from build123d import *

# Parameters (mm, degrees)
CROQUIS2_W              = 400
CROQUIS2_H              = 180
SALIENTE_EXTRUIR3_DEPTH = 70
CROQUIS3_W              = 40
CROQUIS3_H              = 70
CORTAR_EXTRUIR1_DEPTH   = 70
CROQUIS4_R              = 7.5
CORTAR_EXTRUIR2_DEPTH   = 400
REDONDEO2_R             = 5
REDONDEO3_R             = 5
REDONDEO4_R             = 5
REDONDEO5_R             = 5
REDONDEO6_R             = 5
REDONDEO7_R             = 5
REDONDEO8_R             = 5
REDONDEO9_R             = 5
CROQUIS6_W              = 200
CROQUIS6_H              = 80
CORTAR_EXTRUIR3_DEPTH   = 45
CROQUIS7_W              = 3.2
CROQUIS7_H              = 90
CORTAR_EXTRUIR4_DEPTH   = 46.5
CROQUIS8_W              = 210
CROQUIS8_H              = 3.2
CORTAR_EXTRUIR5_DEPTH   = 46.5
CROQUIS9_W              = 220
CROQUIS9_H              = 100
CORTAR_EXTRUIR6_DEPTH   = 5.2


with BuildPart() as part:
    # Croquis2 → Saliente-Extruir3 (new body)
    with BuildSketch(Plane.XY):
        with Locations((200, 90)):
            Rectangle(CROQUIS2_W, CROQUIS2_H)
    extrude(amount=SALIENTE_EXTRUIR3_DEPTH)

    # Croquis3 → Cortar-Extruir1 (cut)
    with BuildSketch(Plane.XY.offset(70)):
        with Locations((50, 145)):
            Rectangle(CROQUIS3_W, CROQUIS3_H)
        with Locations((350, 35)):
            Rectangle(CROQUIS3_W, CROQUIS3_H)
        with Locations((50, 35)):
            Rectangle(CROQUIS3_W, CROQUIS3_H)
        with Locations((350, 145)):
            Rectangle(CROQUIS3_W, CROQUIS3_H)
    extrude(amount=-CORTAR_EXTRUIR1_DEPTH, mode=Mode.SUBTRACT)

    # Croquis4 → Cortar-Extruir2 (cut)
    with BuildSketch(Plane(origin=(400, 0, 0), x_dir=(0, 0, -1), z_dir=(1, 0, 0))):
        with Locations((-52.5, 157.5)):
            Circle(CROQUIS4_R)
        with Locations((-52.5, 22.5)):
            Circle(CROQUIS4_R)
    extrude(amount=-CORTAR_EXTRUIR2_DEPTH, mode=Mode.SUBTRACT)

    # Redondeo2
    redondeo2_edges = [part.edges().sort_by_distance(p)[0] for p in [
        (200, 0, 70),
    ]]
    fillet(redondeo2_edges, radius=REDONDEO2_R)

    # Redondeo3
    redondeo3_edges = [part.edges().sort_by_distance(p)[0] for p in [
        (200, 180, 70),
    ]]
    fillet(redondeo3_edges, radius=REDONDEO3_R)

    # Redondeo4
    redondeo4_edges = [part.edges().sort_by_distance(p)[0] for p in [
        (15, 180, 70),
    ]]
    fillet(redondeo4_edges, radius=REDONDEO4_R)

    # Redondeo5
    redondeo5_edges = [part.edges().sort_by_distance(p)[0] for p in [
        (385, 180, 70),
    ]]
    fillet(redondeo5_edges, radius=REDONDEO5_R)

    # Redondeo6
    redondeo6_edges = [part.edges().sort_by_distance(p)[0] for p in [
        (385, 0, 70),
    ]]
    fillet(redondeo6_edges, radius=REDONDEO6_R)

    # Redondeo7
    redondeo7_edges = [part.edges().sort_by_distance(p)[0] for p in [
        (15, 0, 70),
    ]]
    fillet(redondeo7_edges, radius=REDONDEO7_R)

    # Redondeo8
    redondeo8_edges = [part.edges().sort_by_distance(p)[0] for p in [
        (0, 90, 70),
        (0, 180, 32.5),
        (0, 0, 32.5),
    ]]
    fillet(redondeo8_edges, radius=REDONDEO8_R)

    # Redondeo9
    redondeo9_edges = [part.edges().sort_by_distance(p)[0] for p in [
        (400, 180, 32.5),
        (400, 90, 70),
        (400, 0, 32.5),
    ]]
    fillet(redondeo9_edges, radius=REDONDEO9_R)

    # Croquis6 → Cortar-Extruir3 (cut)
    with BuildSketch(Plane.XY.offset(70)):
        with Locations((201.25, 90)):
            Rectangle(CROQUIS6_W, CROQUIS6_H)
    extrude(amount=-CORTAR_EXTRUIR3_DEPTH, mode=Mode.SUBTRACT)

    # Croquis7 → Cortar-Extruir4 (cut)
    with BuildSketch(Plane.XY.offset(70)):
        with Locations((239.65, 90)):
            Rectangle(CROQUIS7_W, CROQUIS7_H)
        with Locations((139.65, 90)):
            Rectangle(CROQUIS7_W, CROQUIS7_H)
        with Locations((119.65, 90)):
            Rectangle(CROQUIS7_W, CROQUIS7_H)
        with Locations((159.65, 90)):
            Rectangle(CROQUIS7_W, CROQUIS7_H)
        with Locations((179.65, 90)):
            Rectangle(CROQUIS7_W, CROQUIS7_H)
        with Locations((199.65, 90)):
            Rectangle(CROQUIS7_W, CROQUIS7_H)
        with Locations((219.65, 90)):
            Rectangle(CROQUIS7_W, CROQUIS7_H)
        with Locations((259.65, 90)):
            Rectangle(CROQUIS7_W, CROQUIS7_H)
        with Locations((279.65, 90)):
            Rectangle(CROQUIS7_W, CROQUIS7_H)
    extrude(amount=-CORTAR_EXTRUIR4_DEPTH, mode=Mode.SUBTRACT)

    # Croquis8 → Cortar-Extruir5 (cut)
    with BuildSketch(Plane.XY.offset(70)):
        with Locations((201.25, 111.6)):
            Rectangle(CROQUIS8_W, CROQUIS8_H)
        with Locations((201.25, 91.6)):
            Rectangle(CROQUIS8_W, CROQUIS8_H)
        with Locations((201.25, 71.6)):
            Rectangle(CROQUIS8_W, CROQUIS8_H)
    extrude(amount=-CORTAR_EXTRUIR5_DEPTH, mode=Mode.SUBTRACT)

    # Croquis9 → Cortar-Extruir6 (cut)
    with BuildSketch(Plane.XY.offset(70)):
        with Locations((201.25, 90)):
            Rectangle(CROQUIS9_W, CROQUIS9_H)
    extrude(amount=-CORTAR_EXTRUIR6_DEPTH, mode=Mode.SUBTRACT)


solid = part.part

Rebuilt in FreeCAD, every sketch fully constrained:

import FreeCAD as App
import Part
import Sketcher
Q = App.Units.Quantity


def edges_at(feature, points):
    """Names of the edges that pass closest to the given points."""
    edges = feature.Shape.Edges
    near = lambda p: min(range(len(edges)), key=lambda i: edges[i].distToShape(Part.Vertex(*p))[0])
    return sorted({f"Edge{near(p) + 1}" for p in points})

doc = App.newDocument("Part")
body = doc.addObject("PartDesign::Body", "Body")

# Sketch on XY plane
sketch1 = body.newObject("Sketcher::SketchObject", "Sketch")
sketch1.AttachmentSupport = (doc.getObject("XY_Plane"), [""])
sketch1.MapMode = "FlatFace"
sketch1.addGeometry(Part.LineSegment(App.Vector(0, 180, 0), App.Vector(0, 0, 0)), False)
sketch1.addGeometry(Part.LineSegment(App.Vector(0, 0, 0), App.Vector(400, 0, 0)), False)
sketch1.addGeometry(Part.LineSegment(App.Vector(400, 0, 0), App.Vector(400, 180, 0)), False)
sketch1.addGeometry(Part.LineSegment(App.Vector(400, 180, 0), App.Vector(0, 180, 0)), False)
sketch1.addConstraint(Sketcher.Constraint("Coincident", 0, 2, 1, 1))
sketch1.addConstraint(Sketcher.Constraint("Coincident", 1, 2, 2, 1))
sketch1.addConstraint(Sketcher.Constraint("Coincident", 2, 2, 3, 1))
sketch1.addConstraint(Sketcher.Constraint("Coincident", 3, 2, 0, 1))
sketch1.addConstraint(Sketcher.Constraint("Vertical", 0))
sketch1.addConstraint(Sketcher.Constraint("Horizontal", 1))
sketch1.addConstraint(Sketcher.Constraint("Vertical", 2))
sketch1.addConstraint(Sketcher.Constraint("Horizontal", 3))
sketch1.addConstraint(Sketcher.Constraint("Coincident", 0, 2, -1, 1))
sketch1.addConstraint(Sketcher.Constraint("DistanceX", 1, 1, 1, 2, Q("400 mm")))
sketch1.addConstraint(Sketcher.Constraint("DistanceY", 0, 2, 0, 1, Q("180 mm")))
pad1 = body.newObject("PartDesign::Pad", "Pad")
pad1.Profile = sketch1
pad1.Length = 70

# Sketch on XY plane
sketch2 = body.newObject("Sketcher::SketchObject", "Sketch001")
sketch2.AttachmentSupport = (doc.getObject("XY_Plane"), [""])
sketch2.MapMode = "FlatFace"
sketch2.AttachmentOffset = App.Placement(App.Vector(0, 0, 70), App.Rotation())
sketch2.addGeometry(Part.LineSegment(App.Vector(30, 180, 0), App.Vector(30, 110, 0)), False)
sketch2.addGeometry(Part.LineSegment(App.Vector(30, 110, 0), App.Vector(70, 110, 0)), False)
sketch2.addGeometry(Part.LineSegment(App.Vector(70, 110, 0), App.Vector(70, 180, 0)), False)
sketch2.addGeometry(Part.LineSegment(App.Vector(70, 180, 0), App.Vector(30, 180, 0)), False)
sketch2.addGeometry(Part.LineSegment(App.Vector(330, 70, 0), App.Vector(330, 0, 0)), False)
sketch2.addGeometry(Part.LineSegment(App.Vector(330, 0, 0), App.Vector(370, 0, 0)), False)
sketch2.addGeometry(Part.LineSegment(App.Vector(370, 0, 0), App.Vector(370, 70, 0)), False)
sketch2.addGeometry(Part.LineSegment(App.Vector(370, 70, 0), App.Vector(330, 70, 0)), False)
sketch2.addGeometry(Part.LineSegment(App.Vector(30, 70, 0), App.Vector(30, 0, 0)), False)
sketch2.addGeometry(Part.LineSegment(App.Vector(30, 0, 0), App.Vector(70, 0, 0)), False)
sketch2.addGeometry(Part.LineSegment(App.Vector(70, 0, 0), App.Vector(70, 70, 0)), False)
sketch2.addGeometry(Part.LineSegment(App.Vector(70, 70, 0), App.Vector(30, 70, 0)), False)
sketch2.addGeometry(Part.LineSegment(App.Vector(330, 180, 0), App.Vector(330, 110, 0)), False)
sketch2.addGeometry(Part.LineSegment(App.Vector(330, 110, 0), App.Vector(370, 110, 0)), False)
sketch2.addGeometry(Part.LineSegment(App.Vector(370, 110, 0), App.Vector(370, 180, 0)), False)
sketch2.addGeometry(Part.LineSegment(App.Vector(370, 180, 0), App.Vector(330, 180, 0)), False)
sketch2.addConstraint(Sketcher.Constraint("Coincident", 0, 2, 1, 1))
sketch2.addConstraint(Sketcher.Constraint("Coincident", 1, 2, 2, 1))
sketch2.addConstraint(Sketcher.Constraint("Coincident", 2, 2, 3, 1))
sketch2.addConstraint(Sketcher.Constraint("Coincident", 3, 2, 0, 1))
sketch2.addConstraint(Sketcher.Constraint("Coincident", 4, 2, 5, 1))
sketch2.addConstraint(Sketcher.Constraint("Coincident", 5, 2, 6, 1))
sketch2.addConstraint(Sketcher.Constraint("Coincident", 6, 2, 7, 1))
sketch2.addConstraint(Sketcher.Constraint("Coincident", 7, 2, 4, 1))
sketch2.addConstraint(Sketcher.Constraint("Coincident", 8, 2, 9, 1))
sketch2.addConstraint(Sketcher.Constraint("Coincident", 9, 2, 10, 1))
sketch2.addConstraint(Sketcher.Constraint("Coincident", 10, 2, 11, 1))
sketch2.addConstraint(Sketcher.Constraint("Coincident", 11, 2, 8, 1))
sketch2.addConstraint(Sketcher.Constraint("Coincident", 12, 2, 13, 1))
sketch2.addConstraint(Sketcher.Constraint("Coincident", 13, 2, 14, 1))
sketch2.addConstraint(Sketcher.Constraint("Coincident", 14, 2, 15, 1))
sketch2.addConstraint(Sketcher.Constraint("Coincident", 15, 2, 12, 1))
sketch2.addConstraint(Sketcher.Constraint("Vertical", 0))
sketch2.addConstraint(Sketcher.Constraint("Horizontal", 1))
sketch2.addConstraint(Sketcher.Constraint("Vertical", 2))
sketch2.addConstraint(Sketcher.Constraint("Horizontal", 3))
sketch2.addConstraint(Sketcher.Constraint("Vertical", 4))
sketch2.addConstraint(Sketcher.Constraint("Horizontal", 5))
sketch2.addConstraint(Sketcher.Constraint("Vertical", 6))
sketch2.addConstraint(Sketcher.Constraint("Horizontal", 7))
sketch2.addConstraint(Sketcher.Constraint("Vertical", 8))
sketch2.addConstraint(Sketcher.Constraint("Horizontal", 9))
sketch2.addConstraint(Sketcher.Constraint("Vertical", 10))
sketch2.addConstraint(Sketcher.Constraint("Horizontal", 11))
sketch2.addConstraint(Sketcher.Constraint("Vertical", 12))
sketch2.addConstraint(Sketcher.Constraint("Horizontal", 13))
sketch2.addConstraint(Sketcher.Constraint("Vertical", 14))
sketch2.addConstraint(Sketcher.Constraint("Horizontal", 15))
sketch2.addConstraint(Sketcher.Constraint("PointOnObject", 4, 2, -1))
sketch2.addConstraint(Sketcher.Constraint("PointOnObject", 8, 2, -1))
sketch2.addConstraint(Sketcher.Constraint("Horizontal", 7, 2, 10, 2))
sketch2.addConstraint(Sketcher.Constraint("Horizontal", 1, 2, 12, 2))
sketch2.addConstraint(Sketcher.Constraint("Horizontal", 3, 2, 14, 2))
sketch2.addConstraint(Sketcher.Constraint("Vertical", 3, 2, 8, 2))
sketch2.addConstraint(Sketcher.Constraint("Vertical", 2, 2, 9, 2))
sketch2.addConstraint(Sketcher.Constraint("Vertical", 7, 2, 12, 2))
sketch2.addConstraint(Sketcher.Constraint("Vertical", 6, 2, 13, 2))
sketch2.addConstraint(Sketcher.Constraint("Equal", 3, 5))
sketch2.addConstraint(Sketcher.Constraint("Equal", 2, 4))
sketch2.addConstraint(Sketcher.Constraint("DistanceX", 1, 1, 1, 2, Q("40 mm")))
sketch2.addConstraint(Sketcher.Constraint("DistanceY", 0, 2, 0, 1, Q("70 mm")))
sketch2.addConstraint(Sketcher.Constraint("DistanceX", -1, 1, 0, 2, Q("30 mm")))
sketch2.addConstraint(Sketcher.Constraint("DistanceY", -1, 1, 0, 2, Q("110 mm")))
sketch2.addConstraint(Sketcher.Constraint("DistanceX", -1, 1, 4, 2, Q("330 mm")))
pocket1 = body.newObject("PartDesign::Pocket", "Pocket")
pocket1.Profile = sketch2
pocket1.Length = 70

# Sketch on YZ plane
sketch3 = body.newObject("Sketcher::SketchObject", "Sketch002")
sketch3.AttachmentSupport = (doc.getObject("YZ_Plane"), [""])
sketch3.MapMode = "FlatFace"
sketch3.AttachmentOffset = App.Placement(App.Vector(0, 0, 400), App.Rotation())
sketch3.addGeometry(Part.Circle(App.Vector(158, 52, 0), App.Vector(0, 0, 1), 8), False)
sketch3.addGeometry(Part.Circle(App.Vector(22, 52, 0), App.Vector(0, 0, 1), 8), False)
sketch3.addConstraint(Sketcher.Constraint("Equal", 0, 1))
sketch3.addConstraint(Sketcher.Constraint("Horizontal", 0, 3, 1, 3))
sketch3.addConstraint(Sketcher.Constraint("Diameter", 0, Q("15 mm")))
sketch3.addConstraint(Sketcher.Constraint("DistanceX", 1, 3, 0, 3, Q("135 mm")))
sketch3.addConstraint(Sketcher.Constraint("DistanceX", -1, 1, 0, 3, Q("157.5 mm")))
sketch3.addConstraint(Sketcher.Constraint("DistanceY", -1, 1, 0, 3, Q("52.5 mm")))
pocket2 = body.newObject("PartDesign::Pocket", "Pocket001")
pocket2.Profile = sketch3
pocket2.Length = 400
doc.recompute()

fillet = body.newObject("PartDesign::Fillet", "Fillet")
fillet.Base = (pocket2, edges_at(pocket2, [(200, 0, 70)]))
fillet.Radius = 5
doc.recompute()

fillet2 = body.newObject("PartDesign::Fillet", "Fillet001")
fillet2.Base = (fillet, edges_at(fillet, [(200, 180, 70)]))
fillet2.Radius = 5
doc.recompute()

fillet3 = body.newObject("PartDesign::Fillet", "Fillet002")
fillet3.Base = (fillet2, edges_at(fillet2, [(15, 180, 70)]))
fillet3.Radius = 5
doc.recompute()

fillet4 = body.newObject("PartDesign::Fillet", "Fillet003")
fillet4.Base = (fillet3, edges_at(fillet3, [(385, 180, 70)]))
fillet4.Radius = 5
doc.recompute()

fillet5 = body.newObject("PartDesign::Fillet", "Fillet004")
fillet5.Base = (fillet4, edges_at(fillet4, [(385, 0, 70)]))
fillet5.Radius = 5
doc.recompute()

fillet6 = body.newObject("PartDesign::Fillet", "Fillet005")
fillet6.Base = (fillet5, edges_at(fillet5, [(15, 0, 70)]))
fillet6.Radius = 5
doc.recompute()

fillet7 = body.newObject("PartDesign::Fillet", "Fillet006")
fillet7.Base = (fillet6, edges_at(fillet6, [(0, 90, 70), (0, 180, 32.5), (0, 0, 32.5)]))
fillet7.Radius = 5
doc.recompute()

fillet8 = body.newObject("PartDesign::Fillet", "Fillet007")
fillet8.Base = (fillet7, edges_at(fillet7, [(400, 180, 32.5), (400, 90, 70), (400, 0, 32.5)]))
fillet8.Radius = 5

# Sketch on XY plane
sketch4 = body.newObject("Sketcher::SketchObject", "Sketch003")
sketch4.AttachmentSupport = (doc.getObject("XY_Plane"), [""])
sketch4.MapMode = "FlatFace"
sketch4.AttachmentOffset = App.Placement(App.Vector(0, 0, 70), App.Rotation())
sketch4.addGeometry(Part.LineSegment(App.Vector(101, 130, 0), App.Vector(101, 50, 0)), False)
sketch4.addGeometry(Part.LineSegment(App.Vector(101, 50, 0), App.Vector(301, 50, 0)), False)
sketch4.addGeometry(Part.LineSegment(App.Vector(301, 50, 0), App.Vector(301, 130, 0)), False)
sketch4.addGeometry(Part.LineSegment(App.Vector(301, 130, 0), App.Vector(101, 130, 0)), False)
sketch4.addConstraint(Sketcher.Constraint("Coincident", 0, 2, 1, 1))
sketch4.addConstraint(Sketcher.Constraint("Coincident", 1, 2, 2, 1))
sketch4.addConstraint(Sketcher.Constraint("Coincident", 2, 2, 3, 1))
sketch4.addConstraint(Sketcher.Constraint("Coincident", 3, 2, 0, 1))
sketch4.addConstraint(Sketcher.Constraint("Vertical", 0))
sketch4.addConstraint(Sketcher.Constraint("Horizontal", 1))
sketch4.addConstraint(Sketcher.Constraint("Vertical", 2))
sketch4.addConstraint(Sketcher.Constraint("Horizontal", 3))
sketch4.addConstraint(Sketcher.Constraint("DistanceX", 1, 1, 1, 2, Q("200 mm")))
sketch4.addConstraint(Sketcher.Constraint("DistanceY", 0, 2, 0, 1, Q("80 mm")))
sketch4.addConstraint(Sketcher.Constraint("DistanceY", -1, 1, 0, 2, Q("50 mm")))
sketch4.addConstraint(Sketcher.Constraint("DistanceX", -1, 1, 0, 2, Q("101.25 mm")))
pocket3 = body.newObject("PartDesign::Pocket", "Pocket002")
pocket3.Profile = sketch4
pocket3.Length = 45

# Sketch on XY plane
sketch5 = body.newObject("Sketcher::SketchObject", "Sketch004")
sketch5.AttachmentSupport = (doc.getObject("XY_Plane"), [""])
sketch5.MapMode = "FlatFace"
sketch5.AttachmentOffset = App.Placement(App.Vector(0, 0, 70), App.Rotation())
sketch5.addGeometry(Part.LineSegment(App.Vector(238.1, 135, 0), App.Vector(238.1, 45, 0)), False)
sketch5.addGeometry(Part.LineSegment(App.Vector(238.1, 45, 0), App.Vector(241.2, 45, 0)), False)
sketch5.addGeometry(Part.LineSegment(App.Vector(241.2, 45, 0), App.Vector(241.2, 135, 0)), False)
sketch5.addGeometry(Part.LineSegment(App.Vector(241.2, 135, 0), App.Vector(238.1, 135, 0)), False)
sketch5.addGeometry(Part.LineSegment(App.Vector(138.1, 135, 0), App.Vector(138.1, 45, 0)), False)
sketch5.addGeometry(Part.LineSegment(App.Vector(138.1, 45, 0), App.Vector(141.2, 45, 0)), False)
sketch5.addGeometry(Part.LineSegment(App.Vector(141.2, 45, 0), App.Vector(141.2, 135, 0)), False)
sketch5.addGeometry(Part.LineSegment(App.Vector(141.2, 135, 0), App.Vector(138.1, 135, 0)), False)
sketch5.addGeometry(Part.LineSegment(App.Vector(118, 135, 0), App.Vector(118, 45, 0)), False)
sketch5.addGeometry(Part.LineSegment(App.Vector(118, 45, 0), App.Vector(121.2, 45, 0)), False)
sketch5.addGeometry(Part.LineSegment(App.Vector(121.2, 45, 0), App.Vector(121.2, 135, 0)), False)
sketch5.addGeometry(Part.LineSegment(App.Vector(121.2, 135, 0), App.Vector(118, 135, 0)), False)
sketch5.addGeometry(Part.LineSegment(App.Vector(158.1, 135, 0), App.Vector(158.1, 45, 0)), False)
sketch5.addGeometry(Part.LineSegment(App.Vector(158.1, 45, 0), App.Vector(161.2, 45, 0)), False)
sketch5.addGeometry(Part.LineSegment(App.Vector(161.2, 45, 0), App.Vector(161.2, 135, 0)), False)
sketch5.addGeometry(Part.LineSegment(App.Vector(161.2, 135, 0), App.Vector(158.1, 135, 0)), False)
sketch5.addGeometry(Part.LineSegment(App.Vector(178.1, 135, 0), App.Vector(178.1, 45, 0)), False)
sketch5.addGeometry(Part.LineSegment(App.Vector(178.1, 45, 0), App.Vector(181.2, 45, 0)), False)
sketch5.addGeometry(Part.LineSegment(App.Vector(181.2, 45, 0), App.Vector(181.2, 135, 0)), False)
sketch5.addGeometry(Part.LineSegment(App.Vector(181.2, 135, 0), App.Vector(178.1, 135, 0)), False)
sketch5.addGeometry(Part.LineSegment(App.Vector(198.1, 135, 0), App.Vector(198.1, 45, 0)), False)
sketch5.addGeometry(Part.LineSegment(App.Vector(198.1, 45, 0), App.Vector(201.2, 45, 0)), False)
sketch5.addGeometry(Part.LineSegment(App.Vector(201.2, 45, 0), App.Vector(201.2, 135, 0)), False)
sketch5.addGeometry(Part.LineSegment(App.Vector(201.2, 135, 0), App.Vector(198.1, 135, 0)), False)
sketch5.addGeometry(Part.LineSegment(App.Vector(218.1, 135, 0), App.Vector(218.1, 45, 0)), False)
sketch5.addGeometry(Part.LineSegment(App.Vector(218.1, 45, 0), App.Vector(221.2, 45, 0)), False)
sketch5.addGeometry(Part.LineSegment(App.Vector(221.2, 45, 0), App.Vector(221.2, 135, 0)), False)
sketch5.addGeometry(Part.LineSegment(App.Vector(221.2, 135, 0), App.Vector(218.1, 135, 0)), False)
sketch5.addGeometry(Part.LineSegment(App.Vector(258.1, 135, 0), App.Vector(258.1, 45, 0)), False)
sketch5.addGeometry(Part.LineSegment(App.Vector(258.1, 45, 0), App.Vector(261.2, 45, 0)), False)
sketch5.addGeometry(Part.LineSegment(App.Vector(261.2, 45, 0), App.Vector(261.2, 135, 0)), False)
sketch5.addGeometry(Part.LineSegment(App.Vector(261.2, 135, 0), App.Vector(258.1, 135, 0)), False)
sketch5.addGeometry(Part.LineSegment(App.Vector(278.1, 135, 0), App.Vector(278.1, 45, 0)), False)
sketch5.addGeometry(Part.LineSegment(App.Vector(278.1, 45, 0), App.Vector(281.2, 45, 0)), False)
sketch5.addGeometry(Part.LineSegment(App.Vector(281.2, 45, 0), App.Vector(281.2, 135, 0)), False)
sketch5.addGeometry(Part.LineSegment(App.Vector(281.2, 135, 0), App.Vector(278.1, 135, 0)), False)
sketch5.addConstraint(Sketcher.Constraint("Coincident", 0, 2, 1, 1))
sketch5.addConstraint(Sketcher.Constraint("Coincident", 1, 2, 2, 1))
sketch5.addConstraint(Sketcher.Constraint("Coincident", 2, 2, 3, 1))
sketch5.addConstraint(Sketcher.Constraint("Coincident", 3, 2, 0, 1))
sketch5.addConstraint(Sketcher.Constraint("Coincident", 4, 2, 5, 1))
sketch5.addConstraint(Sketcher.Constraint("Coincident", 5, 2, 6, 1))
sketch5.addConstraint(Sketcher.Constraint("Coincident", 6, 2, 7, 1))
sketch5.addConstraint(Sketcher.Constraint("Coincident", 7, 2, 4, 1))
sketch5.addConstraint(Sketcher.Constraint("Coincident", 8, 2, 9, 1))
sketch5.addConstraint(Sketcher.Constraint("Coincident", 9, 2, 10, 1))
sketch5.addConstraint(Sketcher.Constraint("Coincident", 10, 2, 11, 1))
sketch5.addConstraint(Sketcher.Constraint("Coincident", 11, 2, 8, 1))
sketch5.addConstraint(Sketcher.Constraint("Coincident", 12, 2, 13, 1))
sketch5.addConstraint(Sketcher.Constraint("Coincident", 13, 2, 14, 1))
sketch5.addConstraint(Sketcher.Constraint("Coincident", 14, 2, 15, 1))
sketch5.addConstraint(Sketcher.Constraint("Coincident", 15, 2, 12, 1))
sketch5.addConstraint(Sketcher.Constraint("Coincident", 16, 2, 17, 1))
sketch5.addConstraint(Sketcher.Constraint("Coincident", 17, 2, 18, 1))
sketch5.addConstraint(Sketcher.Constraint("Coincident", 18, 2, 19, 1))
sketch5.addConstraint(Sketcher.Constraint("Coincident", 19, 2, 16, 1))
sketch5.addConstraint(Sketcher.Constraint("Coincident", 20, 2, 21, 1))
sketch5.addConstraint(Sketcher.Constraint("Coincident", 21, 2, 22, 1))
sketch5.addConstraint(Sketcher.Constraint("Coincident", 22, 2, 23, 1))
sketch5.addConstraint(Sketcher.Constraint("Coincident", 23, 2, 20, 1))
sketch5.addConstraint(Sketcher.Constraint("Coincident", 24, 2, 25, 1))
sketch5.addConstraint(Sketcher.Constraint("Coincident", 25, 2, 26, 1))
sketch5.addConstraint(Sketcher.Constraint("Coincident", 26, 2, 27, 1))
sketch5.addConstraint(Sketcher.Constraint("Coincident", 27, 2, 24, 1))
sketch5.addConstraint(Sketcher.Constraint("Coincident", 28, 2, 29, 1))
sketch5.addConstraint(Sketcher.Constraint("Coincident", 29, 2, 30, 1))
sketch5.addConstraint(Sketcher.Constraint("Coincident", 30, 2, 31, 1))
sketch5.addConstraint(Sketcher.Constraint("Coincident", 31, 2, 28, 1))
sketch5.addConstraint(Sketcher.Constraint("Coincident", 32, 2, 33, 1))
sketch5.addConstraint(Sketcher.Constraint("Coincident", 33, 2, 34, 1))
sketch5.addConstraint(Sketcher.Constraint("Coincident", 34, 2, 35, 1))
sketch5.addConstraint(Sketcher.Constraint("Coincident", 35, 2, 32, 1))
sketch5.addConstraint(Sketcher.Constraint("Vertical", 0))
sketch5.addConstraint(Sketcher.Constraint("Horizontal", 1))
sketch5.addConstraint(Sketcher.Constraint("Vertical", 2))
sketch5.addConstraint(Sketcher.Constraint("Horizontal", 3))
sketch5.addConstraint(Sketcher.Constraint("Vertical", 4))
sketch5.addConstraint(Sketcher.Constraint("Horizontal", 5))
sketch5.addConstraint(Sketcher.Constraint("Vertical", 6))
sketch5.addConstraint(Sketcher.Constraint("Horizontal", 7))
sketch5.addConstraint(Sketcher.Constraint("Vertical", 8))
sketch5.addConstraint(Sketcher.Constraint("Horizontal", 9))
sketch5.addConstraint(Sketcher.Constraint("Vertical", 10))
sketch5.addConstraint(Sketcher.Constraint("Horizontal", 11))
sketch5.addConstraint(Sketcher.Constraint("Vertical", 12))
sketch5.addConstraint(Sketcher.Constraint("Horizontal", 13))
sketch5.addConstraint(Sketcher.Constraint("Vertical", 14))
sketch5.addConstraint(Sketcher.Constraint("Horizontal", 15))
sketch5.addConstraint(Sketcher.Constraint("Vertical", 16))
sketch5.addConstraint(Sketcher.Constraint("Horizontal", 17))
sketch5.addConstraint(Sketcher.Constraint("Vertical", 18))
sketch5.addConstraint(Sketcher.Constraint("Horizontal", 19))
sketch5.addConstraint(Sketcher.Constraint("Vertical", 20))
sketch5.addConstraint(Sketcher.Constraint("Horizontal", 21))
sketch5.addConstraint(Sketcher.Constraint("Vertical", 22))
sketch5.addConstraint(Sketcher.Constraint("Horizontal", 23))
sketch5.addConstraint(Sketcher.Constraint("Vertical", 24))
sketch5.addConstraint(Sketcher.Constraint("Horizontal", 25))
sketch5.addConstraint(Sketcher.Constraint("Vertical", 26))
sketch5.addConstraint(Sketcher.Constraint("Horizontal", 27))
sketch5.addConstraint(Sketcher.Constraint("Vertical", 28))
sketch5.addConstraint(Sketcher.Constraint("Horizontal", 29))
sketch5.addConstraint(Sketcher.Constraint("Vertical", 30))
sketch5.addConstraint(Sketcher.Constraint("Horizontal", 31))
sketch5.addConstraint(Sketcher.Constraint("Vertical", 32))
sketch5.addConstraint(Sketcher.Constraint("Horizontal", 33))
sketch5.addConstraint(Sketcher.Constraint("Vertical", 34))
sketch5.addConstraint(Sketcher.Constraint("Horizontal", 35))
sketch5.addConstraint(Sketcher.Constraint("Horizontal", 1, 2, 4, 2))
sketch5.addConstraint(Sketcher.Constraint("Horizontal", 3, 2, 6, 2))
sketch5.addConstraint(Sketcher.Constraint("Horizontal", 5, 2, 8, 2))
sketch5.addConstraint(Sketcher.Constraint("Horizontal", 7, 2, 10, 2))
sketch5.addConstraint(Sketcher.Constraint("Horizontal", 9, 2, 12, 2))
sketch5.addConstraint(Sketcher.Constraint("Horizontal", 11, 2, 14, 2))
sketch5.addConstraint(Sketcher.Constraint("Horizontal", 13, 2, 16, 2))
sketch5.addConstraint(Sketcher.Constraint("Horizontal", 15, 2, 18, 2))
sketch5.addConstraint(Sketcher.Constraint("Horizontal", 17, 2, 20, 2))
sketch5.addConstraint(Sketcher.Constraint("Horizontal", 19, 2, 22, 2))
sketch5.addConstraint(Sketcher.Constraint("Horizontal", 21, 2, 24, 2))
sketch5.addConstraint(Sketcher.Constraint("Horizontal", 23, 2, 26, 2))
sketch5.addConstraint(Sketcher.Constraint("Horizontal", 25, 2, 28, 2))
sketch5.addConstraint(Sketcher.Constraint("Horizontal", 27, 2, 30, 2))
sketch5.addConstraint(Sketcher.Constraint("Horizontal", 29, 2, 32, 2))
sketch5.addConstraint(Sketcher.Constraint("Horizontal", 31, 2, 34, 2))
sketch5.addConstraint(Sketcher.Constraint("Equal", 3, 5))
sketch5.addConstraint(Sketcher.Constraint("Equal", 7, 9))
sketch5.addConstraint(Sketcher.Constraint("Equal", 11, 13))
sketch5.addConstraint(Sketcher.Constraint("Equal", 15, 17))
sketch5.addConstraint(Sketcher.Constraint("Equal", 19, 21))
sketch5.addConstraint(Sketcher.Constraint("Equal", 23, 25))
sketch5.addConstraint(Sketcher.Constraint("Equal", 27, 29))
sketch5.addConstraint(Sketcher.Constraint("Equal", 31, 33))
sketch5.addConstraint(Sketcher.Constraint("DistanceY", 0, 2, 0, 1, Q("90 mm")))
sketch5.addConstraint(Sketcher.Constraint("DistanceX", 1, 1, 1, 2, Q("3.2 mm")))
sketch5.addConstraint(Sketcher.Constraint("DistanceY", -1, 1, 0, 2, Q("45 mm")))
sketch5.addConstraint(Sketcher.Constraint("DistanceX", 4, 2, 0, 2, Q("100 mm")))
sketch5.addConstraint(Sketcher.Constraint("DistanceX", 8, 2, 4, 2, Q("20 mm")))
sketch5.addConstraint(Sketcher.Constraint("DistanceX", 4, 2, 12, 2, Q("20 mm")))
sketch5.addConstraint(Sketcher.Constraint("DistanceX", 12, 2, 16, 2, Q("20 mm")))
sketch5.addConstraint(Sketcher.Constraint("DistanceX", 16, 2, 20, 2, Q("20 mm")))
sketch5.addConstraint(Sketcher.Constraint("DistanceX", 24, 2, 0, 2, Q("20 mm")))
sketch5.addConstraint(Sketcher.Constraint("DistanceX", 0, 2, 28, 2, Q("20 mm")))
sketch5.addConstraint(Sketcher.Constraint("DistanceX", 28, 2, 32, 2, Q("20 mm")))
sketch5.addConstraint(Sketcher.Constraint("DistanceX", -1, 1, 0, 2, Q("238.05 mm")))
pocket4 = body.newObject("PartDesign::Pocket", "Pocket003")
pocket4.Profile = sketch5
pocket4.Length = 46.5

# Sketch on XY plane
sketch6 = body.newObject("Sketcher::SketchObject", "Sketch005")
sketch6.AttachmentSupport = (doc.getObject("XY_Plane"), [""])
sketch6.MapMode = "FlatFace"
sketch6.AttachmentOffset = App.Placement(App.Vector(0, 0, 70), App.Rotation())
sketch6.addGeometry(Part.LineSegment(App.Vector(96.2, 113.2, 0), App.Vector(96.2, 110, 0)), False)
sketch6.addGeometry(Part.LineSegment(App.Vector(96.2, 110, 0), App.Vector(306.2, 110, 0)), False)
sketch6.addGeometry(Part.LineSegment(App.Vector(306.2, 110, 0), App.Vector(306.2, 113.2, 0)), False)
sketch6.addGeometry(Part.LineSegment(App.Vector(306.2, 113.2, 0), App.Vector(96.2, 113.2, 0)), False)
sketch6.addGeometry(Part.LineSegment(App.Vector(96.2, 93.2, 0), App.Vector(96.2, 90, 0)), False)
sketch6.addGeometry(Part.LineSegment(App.Vector(96.2, 90, 0), App.Vector(306.2, 90, 0)), False)
sketch6.addGeometry(Part.LineSegment(App.Vector(306.2, 90, 0), App.Vector(306.2, 93.2, 0)), False)
sketch6.addGeometry(Part.LineSegment(App.Vector(306.2, 93.2, 0), App.Vector(96.2, 93.2, 0)), False)
sketch6.addGeometry(Part.LineSegment(App.Vector(96.2, 73.2, 0), App.Vector(96.2, 70, 0)), False)
sketch6.addGeometry(Part.LineSegment(App.Vector(96.2, 70, 0), App.Vector(306.2, 70, 0)), False)
sketch6.addGeometry(Part.LineSegment(App.Vector(306.2, 70, 0), App.Vector(306.2, 73.2, 0)), False)
sketch6.addGeometry(Part.LineSegment(App.Vector(306.2, 73.2, 0), App.Vector(96.2, 73.2, 0)), False)
sketch6.addConstraint(Sketcher.Constraint("Coincident", 0, 2, 1, 1))
sketch6.addConstraint(Sketcher.Constraint("Coincident", 1, 2, 2, 1))
sketch6.addConstraint(Sketcher.Constraint("Coincident", 2, 2, 3, 1))
sketch6.addConstraint(Sketcher.Constraint("Coincident", 3, 2, 0, 1))
sketch6.addConstraint(Sketcher.Constraint("Coincident", 4, 2, 5, 1))
sketch6.addConstraint(Sketcher.Constraint("Coincident", 5, 2, 6, 1))
sketch6.addConstraint(Sketcher.Constraint("Coincident", 6, 2, 7, 1))
sketch6.addConstraint(Sketcher.Constraint("Coincident", 7, 2, 4, 1))
sketch6.addConstraint(Sketcher.Constraint("Coincident", 8, 2, 9, 1))
sketch6.addConstraint(Sketcher.Constraint("Coincident", 9, 2, 10, 1))
sketch6.addConstraint(Sketcher.Constraint("Coincident", 10, 2, 11, 1))
sketch6.addConstraint(Sketcher.Constraint("Coincident", 11, 2, 8, 1))
sketch6.addConstraint(Sketcher.Constraint("Vertical", 0))
sketch6.addConstraint(Sketcher.Constraint("Horizontal", 1))
sketch6.addConstraint(Sketcher.Constraint("Vertical", 2))
sketch6.addConstraint(Sketcher.Constraint("Horizontal", 3))
sketch6.addConstraint(Sketcher.Constraint("Vertical", 4))
sketch6.addConstraint(Sketcher.Constraint("Horizontal", 5))
sketch6.addConstraint(Sketcher.Constraint("Vertical", 6))
sketch6.addConstraint(Sketcher.Constraint("Horizontal", 7))
sketch6.addConstraint(Sketcher.Constraint("Vertical", 8))
sketch6.addConstraint(Sketcher.Constraint("Horizontal", 9))
sketch6.addConstraint(Sketcher.Constraint("Vertical", 10))
sketch6.addConstraint(Sketcher.Constraint("Horizontal", 11))
sketch6.addConstraint(Sketcher.Constraint("Vertical", 3, 2, 4, 2))
sketch6.addConstraint(Sketcher.Constraint("Vertical", 2, 2, 5, 2))
sketch6.addConstraint(Sketcher.Constraint("Vertical", 7, 2, 8, 2))
sketch6.addConstraint(Sketcher.Constraint("Vertical", 6, 2, 9, 2))
sketch6.addConstraint(Sketcher.Constraint("Equal", 2, 4))
sketch6.addConstraint(Sketcher.Constraint("Equal", 6, 8))
sketch6.addConstraint(Sketcher.Constraint("DistanceX", 1, 1, 1, 2, Q("210 mm")))
sketch6.addConstraint(Sketcher.Constraint("DistanceY", 0, 2, 0, 1, Q("3.2 mm")))
sketch6.addConstraint(Sketcher.Constraint("DistanceY", -1, 1, 0, 2, Q("110 mm")))
sketch6.addConstraint(Sketcher.Constraint("DistanceY", -1, 1, 4, 2, Q("90 mm")))
sketch6.addConstraint(Sketcher.Constraint("DistanceY", -1, 1, 8, 2, Q("70 mm")))
sketch6.addConstraint(Sketcher.Constraint("DistanceX", -1, 1, 0, 2, Q("96.25 mm")))
pocket5 = body.newObject("PartDesign::Pocket", "Pocket004")
pocket5.Profile = sketch6
pocket5.Length = 46.5

# Sketch on XY plane
sketch7 = body.newObject("Sketcher::SketchObject", "Sketch006")
sketch7.AttachmentSupport = (doc.getObject("XY_Plane"), [""])
sketch7.MapMode = "FlatFace"
sketch7.AttachmentOffset = App.Placement(App.Vector(0, 0, 70), App.Rotation())
sketch7.addGeometry(Part.LineSegment(App.Vector(91, 140, 0), App.Vector(91, 40, 0)), False)
sketch7.addGeometry(Part.LineSegment(App.Vector(91, 40, 0), App.Vector(311, 40, 0)), False)
sketch7.addGeometry(Part.LineSegment(App.Vector(311, 40, 0), App.Vector(311, 140, 0)), False)
sketch7.addGeometry(Part.LineSegment(App.Vector(311, 140, 0), App.Vector(91, 140, 0)), False)
sketch7.addConstraint(Sketcher.Constraint("Coincident", 0, 2, 1, 1))
sketch7.addConstraint(Sketcher.Constraint("Coincident", 1, 2, 2, 1))
sketch7.addConstraint(Sketcher.Constraint("Coincident", 2, 2, 3, 1))
sketch7.addConstraint(Sketcher.Constraint("Coincident", 3, 2, 0, 1))
sketch7.addConstraint(Sketcher.Constraint("Vertical", 0))
sketch7.addConstraint(Sketcher.Constraint("Horizontal", 1))
sketch7.addConstraint(Sketcher.Constraint("Vertical", 2))
sketch7.addConstraint(Sketcher.Constraint("Horizontal", 3))
sketch7.addConstraint(Sketcher.Constraint("DistanceX", 1, 1, 1, 2, Q("220 mm")))
sketch7.addConstraint(Sketcher.Constraint("DistanceY", 0, 2, 0, 1, Q("100 mm")))
sketch7.addConstraint(Sketcher.Constraint("DistanceY", -1, 1, 0, 2, Q("40 mm")))
sketch7.addConstraint(Sketcher.Constraint("DistanceX", -1, 1, 0, 2, Q("91.25 mm")))
pocket6 = body.newObject("PartDesign::Pocket", "Pocket005")
pocket6.Profile = sketch7
pocket6.Length = 5.2

doc.recompute()
